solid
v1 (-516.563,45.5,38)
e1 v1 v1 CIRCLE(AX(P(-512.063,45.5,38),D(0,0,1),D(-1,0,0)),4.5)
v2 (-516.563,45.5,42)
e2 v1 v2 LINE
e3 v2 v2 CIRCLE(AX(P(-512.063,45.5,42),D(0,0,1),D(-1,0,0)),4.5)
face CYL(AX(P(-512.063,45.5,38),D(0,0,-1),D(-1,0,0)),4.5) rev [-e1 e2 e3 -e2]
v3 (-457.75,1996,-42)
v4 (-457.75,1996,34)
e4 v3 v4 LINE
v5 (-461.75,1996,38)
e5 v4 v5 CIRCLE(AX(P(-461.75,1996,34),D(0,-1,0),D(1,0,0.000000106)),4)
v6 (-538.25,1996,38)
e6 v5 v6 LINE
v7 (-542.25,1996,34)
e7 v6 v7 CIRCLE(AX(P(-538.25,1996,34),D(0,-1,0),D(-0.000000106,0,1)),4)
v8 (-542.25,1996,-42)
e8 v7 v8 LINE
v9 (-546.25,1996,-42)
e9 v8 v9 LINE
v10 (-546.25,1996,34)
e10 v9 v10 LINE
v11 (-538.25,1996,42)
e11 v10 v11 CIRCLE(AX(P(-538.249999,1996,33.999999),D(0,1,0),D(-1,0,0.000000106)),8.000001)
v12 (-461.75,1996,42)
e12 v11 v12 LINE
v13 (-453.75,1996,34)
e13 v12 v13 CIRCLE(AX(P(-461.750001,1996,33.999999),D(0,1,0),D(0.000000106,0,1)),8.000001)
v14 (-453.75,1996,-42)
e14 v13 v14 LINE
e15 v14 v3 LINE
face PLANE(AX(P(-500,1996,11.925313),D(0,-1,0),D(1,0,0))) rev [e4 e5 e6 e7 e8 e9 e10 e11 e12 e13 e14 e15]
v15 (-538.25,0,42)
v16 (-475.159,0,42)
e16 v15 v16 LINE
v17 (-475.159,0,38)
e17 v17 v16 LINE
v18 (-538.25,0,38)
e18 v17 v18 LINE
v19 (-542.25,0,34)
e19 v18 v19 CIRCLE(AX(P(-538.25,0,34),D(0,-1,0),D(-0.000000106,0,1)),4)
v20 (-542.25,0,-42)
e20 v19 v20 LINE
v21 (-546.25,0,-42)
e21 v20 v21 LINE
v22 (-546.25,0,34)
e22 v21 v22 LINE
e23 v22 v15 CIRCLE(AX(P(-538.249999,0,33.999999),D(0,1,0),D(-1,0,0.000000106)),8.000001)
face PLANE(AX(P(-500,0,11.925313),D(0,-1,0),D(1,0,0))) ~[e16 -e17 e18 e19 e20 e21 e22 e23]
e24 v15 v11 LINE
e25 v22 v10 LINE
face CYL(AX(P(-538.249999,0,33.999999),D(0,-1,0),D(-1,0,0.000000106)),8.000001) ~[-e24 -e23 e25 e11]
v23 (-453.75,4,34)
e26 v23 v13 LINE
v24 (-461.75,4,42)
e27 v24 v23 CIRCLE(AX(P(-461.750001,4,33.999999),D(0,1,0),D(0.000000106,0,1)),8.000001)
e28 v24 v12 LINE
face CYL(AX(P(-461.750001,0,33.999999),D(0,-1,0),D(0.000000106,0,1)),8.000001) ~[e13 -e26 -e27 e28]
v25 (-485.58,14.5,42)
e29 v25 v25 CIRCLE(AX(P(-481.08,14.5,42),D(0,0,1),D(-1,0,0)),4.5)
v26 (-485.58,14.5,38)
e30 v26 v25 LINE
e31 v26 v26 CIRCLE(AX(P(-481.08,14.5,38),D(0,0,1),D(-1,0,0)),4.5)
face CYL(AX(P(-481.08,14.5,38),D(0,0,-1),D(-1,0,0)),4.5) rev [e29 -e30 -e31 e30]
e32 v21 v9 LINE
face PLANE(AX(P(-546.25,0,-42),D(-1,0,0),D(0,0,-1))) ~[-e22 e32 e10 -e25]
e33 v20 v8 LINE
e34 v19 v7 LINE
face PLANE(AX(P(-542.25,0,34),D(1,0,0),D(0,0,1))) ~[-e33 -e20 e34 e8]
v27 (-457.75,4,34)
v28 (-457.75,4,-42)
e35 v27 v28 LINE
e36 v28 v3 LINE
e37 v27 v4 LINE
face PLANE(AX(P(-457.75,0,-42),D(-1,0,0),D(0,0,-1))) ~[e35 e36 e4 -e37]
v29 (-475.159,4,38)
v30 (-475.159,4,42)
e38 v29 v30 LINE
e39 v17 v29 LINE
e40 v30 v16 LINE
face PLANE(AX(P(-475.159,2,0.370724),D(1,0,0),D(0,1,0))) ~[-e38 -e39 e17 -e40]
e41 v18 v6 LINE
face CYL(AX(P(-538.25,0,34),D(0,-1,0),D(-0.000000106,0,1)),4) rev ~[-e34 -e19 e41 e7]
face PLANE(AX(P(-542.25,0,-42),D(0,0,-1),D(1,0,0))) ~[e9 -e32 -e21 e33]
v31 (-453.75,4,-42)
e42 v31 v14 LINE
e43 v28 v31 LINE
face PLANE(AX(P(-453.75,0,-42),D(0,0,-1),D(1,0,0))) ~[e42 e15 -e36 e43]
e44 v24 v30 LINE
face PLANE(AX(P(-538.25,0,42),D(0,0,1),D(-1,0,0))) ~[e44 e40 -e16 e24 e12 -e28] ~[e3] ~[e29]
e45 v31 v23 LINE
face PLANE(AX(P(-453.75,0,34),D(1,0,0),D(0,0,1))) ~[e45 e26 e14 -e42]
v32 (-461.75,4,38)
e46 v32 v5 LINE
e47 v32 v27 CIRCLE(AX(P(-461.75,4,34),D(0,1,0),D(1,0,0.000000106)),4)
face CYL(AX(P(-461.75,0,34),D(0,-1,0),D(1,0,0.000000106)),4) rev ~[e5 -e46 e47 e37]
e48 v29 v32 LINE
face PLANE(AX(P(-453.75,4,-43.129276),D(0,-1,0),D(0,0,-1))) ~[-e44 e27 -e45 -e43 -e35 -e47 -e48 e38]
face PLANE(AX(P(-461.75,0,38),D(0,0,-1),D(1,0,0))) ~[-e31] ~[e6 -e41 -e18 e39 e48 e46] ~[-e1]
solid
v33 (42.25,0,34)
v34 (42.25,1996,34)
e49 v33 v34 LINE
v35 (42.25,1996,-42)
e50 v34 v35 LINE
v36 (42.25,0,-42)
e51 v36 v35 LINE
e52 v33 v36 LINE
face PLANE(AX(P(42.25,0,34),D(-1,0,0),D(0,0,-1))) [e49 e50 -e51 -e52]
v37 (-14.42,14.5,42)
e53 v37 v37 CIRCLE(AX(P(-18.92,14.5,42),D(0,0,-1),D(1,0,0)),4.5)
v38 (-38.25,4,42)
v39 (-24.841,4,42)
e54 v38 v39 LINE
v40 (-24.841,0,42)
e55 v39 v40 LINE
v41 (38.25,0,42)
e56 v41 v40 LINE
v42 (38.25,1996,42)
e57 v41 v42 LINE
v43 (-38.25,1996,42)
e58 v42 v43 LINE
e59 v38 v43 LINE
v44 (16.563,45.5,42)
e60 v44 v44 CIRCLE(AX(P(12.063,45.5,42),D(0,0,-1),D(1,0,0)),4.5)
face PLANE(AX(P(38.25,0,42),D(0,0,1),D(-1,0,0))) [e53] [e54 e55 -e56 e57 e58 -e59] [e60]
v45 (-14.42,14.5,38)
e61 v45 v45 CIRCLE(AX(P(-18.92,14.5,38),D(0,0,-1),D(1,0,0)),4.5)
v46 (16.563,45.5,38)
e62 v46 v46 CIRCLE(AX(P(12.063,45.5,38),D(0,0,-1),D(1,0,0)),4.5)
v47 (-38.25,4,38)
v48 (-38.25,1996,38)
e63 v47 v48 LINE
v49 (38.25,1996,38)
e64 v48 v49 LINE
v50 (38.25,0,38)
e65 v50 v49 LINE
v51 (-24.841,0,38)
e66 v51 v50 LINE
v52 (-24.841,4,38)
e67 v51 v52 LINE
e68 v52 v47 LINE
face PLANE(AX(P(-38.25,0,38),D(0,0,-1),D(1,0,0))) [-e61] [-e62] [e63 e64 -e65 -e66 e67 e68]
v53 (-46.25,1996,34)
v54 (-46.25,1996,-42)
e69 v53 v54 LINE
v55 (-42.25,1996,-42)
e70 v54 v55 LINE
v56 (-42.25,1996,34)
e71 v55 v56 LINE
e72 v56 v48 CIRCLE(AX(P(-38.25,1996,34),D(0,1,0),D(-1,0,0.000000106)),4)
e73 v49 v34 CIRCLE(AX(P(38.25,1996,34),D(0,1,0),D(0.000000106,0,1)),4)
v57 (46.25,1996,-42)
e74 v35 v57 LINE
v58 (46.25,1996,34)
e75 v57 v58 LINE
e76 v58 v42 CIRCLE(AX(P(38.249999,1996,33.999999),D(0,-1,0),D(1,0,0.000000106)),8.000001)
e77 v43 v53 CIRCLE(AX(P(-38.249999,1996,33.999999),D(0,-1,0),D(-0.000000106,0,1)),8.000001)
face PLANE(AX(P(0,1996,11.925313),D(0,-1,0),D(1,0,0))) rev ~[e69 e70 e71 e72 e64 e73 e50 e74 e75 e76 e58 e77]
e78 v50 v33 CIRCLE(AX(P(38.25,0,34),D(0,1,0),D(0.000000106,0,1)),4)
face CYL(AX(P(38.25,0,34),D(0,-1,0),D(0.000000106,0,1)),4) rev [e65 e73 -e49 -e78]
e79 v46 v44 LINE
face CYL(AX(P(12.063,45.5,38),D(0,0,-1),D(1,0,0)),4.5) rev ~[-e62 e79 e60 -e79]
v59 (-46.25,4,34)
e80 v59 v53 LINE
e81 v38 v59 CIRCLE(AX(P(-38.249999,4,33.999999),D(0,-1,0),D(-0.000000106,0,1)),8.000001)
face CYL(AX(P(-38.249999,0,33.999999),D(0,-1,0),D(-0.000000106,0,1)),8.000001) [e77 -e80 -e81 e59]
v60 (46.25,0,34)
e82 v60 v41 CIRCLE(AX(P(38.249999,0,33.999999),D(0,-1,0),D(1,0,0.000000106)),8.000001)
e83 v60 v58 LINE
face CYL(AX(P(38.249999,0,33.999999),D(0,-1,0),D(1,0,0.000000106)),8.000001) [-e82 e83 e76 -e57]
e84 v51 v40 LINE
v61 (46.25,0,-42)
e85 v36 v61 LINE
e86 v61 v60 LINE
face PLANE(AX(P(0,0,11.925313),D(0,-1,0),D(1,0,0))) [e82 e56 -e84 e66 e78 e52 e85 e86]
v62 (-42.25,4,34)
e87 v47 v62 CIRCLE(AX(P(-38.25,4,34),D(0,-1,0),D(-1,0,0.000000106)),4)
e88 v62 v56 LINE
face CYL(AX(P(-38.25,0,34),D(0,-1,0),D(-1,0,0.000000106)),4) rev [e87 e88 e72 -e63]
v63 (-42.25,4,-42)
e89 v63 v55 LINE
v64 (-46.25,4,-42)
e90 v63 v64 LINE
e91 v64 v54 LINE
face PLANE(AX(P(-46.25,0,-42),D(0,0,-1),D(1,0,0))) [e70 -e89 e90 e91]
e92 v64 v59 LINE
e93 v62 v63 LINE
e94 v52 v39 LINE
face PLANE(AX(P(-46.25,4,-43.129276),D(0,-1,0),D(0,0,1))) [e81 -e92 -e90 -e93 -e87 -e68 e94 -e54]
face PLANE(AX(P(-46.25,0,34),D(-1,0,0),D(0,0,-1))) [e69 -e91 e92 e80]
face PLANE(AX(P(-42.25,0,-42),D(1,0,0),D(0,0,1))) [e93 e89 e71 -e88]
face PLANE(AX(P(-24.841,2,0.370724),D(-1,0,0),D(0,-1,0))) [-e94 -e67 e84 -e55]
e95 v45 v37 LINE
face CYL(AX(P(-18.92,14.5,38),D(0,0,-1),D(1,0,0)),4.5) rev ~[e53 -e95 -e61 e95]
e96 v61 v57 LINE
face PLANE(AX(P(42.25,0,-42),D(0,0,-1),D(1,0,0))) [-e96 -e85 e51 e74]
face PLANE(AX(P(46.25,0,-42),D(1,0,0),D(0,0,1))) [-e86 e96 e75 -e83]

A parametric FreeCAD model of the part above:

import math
import FreeCAD as App
import Part
import Sketcher


def add_polygon(sketch, points):
    """Adds a closed chain of lines whose ends are joined by coincident constraints."""
    first, n = sketch.GeometryCount, len(points)
    for a, b in zip(points, points[1:] + points[:1]):
        sketch.addGeometry(Part.LineSegment(App.Vector(*a, 0), App.Vector(*b, 0)), False)
    for i in range(n):
        sketch.addConstraint(Sketcher.Constraint("Coincident", first + i, 2, first + (i + 1) % n, 1))

doc = App.newDocument("Part")
body = doc.addObject("PartDesign::Body", "Body")

sketch1 = body.newObject("Sketcher::SketchObject", "Sketch")
sketch1.AttachmentSupport = (doc.getObject("XZ_Plane"), [""])
sketch1.MapMode = "FlatFace"
sketch1.addGeometry(Part.LineSegment(App.Vector(-46.25, 34, 0), App.Vector(-46.25, -42, 0)), False)
sketch1.addGeometry(Part.LineSegment(App.Vector(-46.25, -42, 0), App.Vector(-42.25, -42, 0)), False)
sketch1.addGeometry(Part.LineSegment(App.Vector(-42.25, -42, 0), App.Vector(-42.25, 34, 0)), False)
sketch1.addGeometry(Part.ArcOfCircle(Part.Circle(App.Vector(-38.25, 34, 0), App.Vector(0, 0, 1), 4), math.radians(90.000006), math.radians(179.999994)), False)
sketch1.addGeometry(Part.LineSegment(App.Vector(-38.25, 38, 0), App.Vector(38.25, 38, 0)), False)
sketch1.addGeometry(Part.ArcOfCircle(Part.Circle(App.Vector(38.25, 34, 0), App.Vector(0, 0, 1), 4), math.radians(0.000006), math.radians(89.999994)), False)
sketch1.addGeometry(Part.LineSegment(App.Vector(42.25, 34, 0), App.Vector(42.25, -42, 0)), False)
sketch1.addGeometry(Part.LineSegment(App.Vector(42.25, -42, 0), App.Vector(46.25, -42, 0)), False)
sketch1.addGeometry(Part.LineSegment(App.Vector(46.25, -42, 0), App.Vector(46.25, 34, 0)), False)
sketch1.addGeometry(Part.ArcOfCircle(Part.Circle(App.Vector(38.249999, 33.999999, 0), App.Vector(0, 0, 1), 8.000001), math.radians(0.000006), math.radians(89.999994)), False)
sketch1.addGeometry(Part.LineSegment(App.Vector(38.25, 42, 0), App.Vector(-38.25, 42, 0)), False)
sketch1.addGeometry(Part.ArcOfCircle(Part.Circle(App.Vector(-38.249999, 33.999999, 0), App.Vector(0, 0, 1), 8.000001), math.radians(90.000006), math.radians(179.999994)), False)
sketch1.addConstraint(Sketcher.Constraint("Coincident", 0, 2, 1, 1))
sketch1.addConstraint(Sketcher.Constraint("Coincident", 1, 2, 2, 1))
sketch1.addConstraint(Sketcher.Constraint("Tangent", 2, 2, 3, 2))
sketch1.addConstraint(Sketcher.Constraint("Tangent", 3, 1, 4, 1))
sketch1.addConstraint(Sketcher.Constraint("Tangent", 4, 2, 5, 2))
sketch1.addConstraint(Sketcher.Constraint("Tangent", 5, 1, 6, 1))
sketch1.addConstraint(Sketcher.Constraint("Coincident", 6, 2, 7, 1))
sketch1.addConstraint(Sketcher.Constraint("Coincident", 7, 2, 8, 1))
sketch1.addConstraint(Sketcher.Constraint("Tangent", 8, 2, 9, 1))
sketch1.addConstraint(Sketcher.Constraint("Tangent", 9, 2, 10, 1))
sketch1.addConstraint(Sketcher.Constraint("Tangent", 10, 2, 11, 1))
sketch1.addConstraint(Sketcher.Constraint("Tangent", 11, 2, 0, 1))
sketch1.addConstraint(Sketcher.Constraint("Vertical", 0))
sketch1.addConstraint(Sketcher.Constraint("Horizontal", 1))
sketch1.addConstraint(Sketcher.Constraint("Vertical", 2))
sketch1.addConstraint(Sketcher.Constraint("Horizontal", 4))
sketch1.addConstraint(Sketcher.Constraint("Vertical", 6))
sketch1.addConstraint(Sketcher.Constraint("Horizontal", 7))
sketch1.addConstraint(Sketcher.Constraint("Vertical", 8))
sketch1.addConstraint(Sketcher.Constraint("Horizontal", 10))
sketch1.addConstraint(Sketcher.Constraint("Coincident", 9, 3, 5, 3))
sketch1.addConstraint(Sketcher.Constraint("Coincident", 11, 3, 3, 3))
sketch1.addConstraint(Sketcher.Constraint("Equal", 3, 5))
sketch1.addConstraint(Sketcher.Constraint("Symmetric", 1, 2, 6, 2, -2))
sketch1.addConstraint(Sketcher.Constraint("Radius", 3, 4.0))
sketch1.addConstraint(Sketcher.Constraint("Radius", 9, 8.000001))
sketch1.addConstraint(Sketcher.Constraint("DistanceY", 0, 2, 0, 1, 76.0))
sketch1.addConstraint(Sketcher.Constraint("DistanceX", 4, 1, 4, 2, 76.5))
sketch1.addConstraint(Sketcher.Constraint("DistanceY", -1, 1, 3, 3, 34.0))
pad1 = body.newObject("PartDesign::Pad", "Pad")
pad1.Profile = sketch1
pad1.Length = 1996
pad1.Reversed = True

sketch2 = body.newObject("Sketcher::SketchObject", "Sketch001")
sketch2.AttachmentSupport = (doc.getObject("YZ_Plane"), [""])
sketch2.MapMode = "FlatFace"
sketch2.AttachmentOffset = App.Placement(App.Vector(0, 0, -46.25), App.Rotation())
add_polygon(sketch2, [(4, 43.870724), (4, -43.129276), (0, -43.129276), (0, 43.870724)])
sketch2.addConstraint(Sketcher.Constraint("Vertical", 0))
sketch2.addConstraint(Sketcher.Constraint("Horizontal", 1))
sketch2.addConstraint(Sketcher.Constraint("Vertical", 2))
sketch2.addConstraint(Sketcher.Constraint("Horizontal", 3))
sketch2.addConstraint(Sketcher.Constraint("PointOnObject", 1, 2, -2))
sketch2.addConstraint(Sketcher.Constraint("DistanceX", 1, 2, 1, 1, 4.0))
sketch2.addConstraint(Sketcher.Constraint("DistanceY", 0, 2, 0, 1, 87.0))
sketch2.addConstraint(Sketcher.Constraint("DistanceY", 0, 2, -1, 1, 43.129276))
pocket1 = body.newObject("PartDesign::Pocket", "Pocket")
pocket1.Profile = sketch2
pocket1.Length = 21.409
pocket1.Reversed = True

sketch3 = body.newObject("Sketcher::SketchObject", "Sketch002")
sketch3.AttachmentSupport = (doc.getObject("XY_Plane"), [""])
sketch3.MapMode = "FlatFace"
sketch3.AttachmentOffset = App.Placement(App.Vector(0, 0, 38), App.Rotation())
sketch3.addGeometry(Part.Circle(App.Vector(12.063, 45.5, 0), App.Vector(0, 0, 1), 4.5), False)
sketch3.addGeometry(Part.Circle(App.Vector(-18.92, 14.5, 0), App.Vector(0, 0, 1), 4.5), False)
sketch3.addConstraint(Sketcher.Constraint("Equal", 0, 1))
sketch3.addConstraint(Sketcher.Constraint("Diameter", 0, 9.0))
sketch3.addConstraint(Sketcher.Constraint("DistanceY", 1, 3, 0, 3, 31.0))
sketch3.addConstraint(Sketcher.Constraint("DistanceY", -1, 1, 0, 3, 45.5))
sketch3.addConstraint(Sketcher.Constraint("DistanceX", 1, 3, -1, 1, 18.92))
sketch3.addConstraint(Sketcher.Constraint("DistanceX", -1, 1, 0, 3, 12.063))
pocket2 = body.newObject("PartDesign::Pocket", "Pocket001")
pocket2.Profile = sketch3
pocket2.Length = 4
pocket2.Reversed = True
body2 = doc.addObject("PartDesign::Body", "Body001")
doc.recompute()

mirroring = doc.addObject("Part::Mirroring", "Mirroring")
mirroring.Source = body
mirroring.Base = App.Vector(-250, 0, 0)
mirroring.Normal = App.Vector(1, 0, 0)
body2.BaseFeature = mirroring
doc.recompute()
mirroring.Visibility = False

doc.recompute()
